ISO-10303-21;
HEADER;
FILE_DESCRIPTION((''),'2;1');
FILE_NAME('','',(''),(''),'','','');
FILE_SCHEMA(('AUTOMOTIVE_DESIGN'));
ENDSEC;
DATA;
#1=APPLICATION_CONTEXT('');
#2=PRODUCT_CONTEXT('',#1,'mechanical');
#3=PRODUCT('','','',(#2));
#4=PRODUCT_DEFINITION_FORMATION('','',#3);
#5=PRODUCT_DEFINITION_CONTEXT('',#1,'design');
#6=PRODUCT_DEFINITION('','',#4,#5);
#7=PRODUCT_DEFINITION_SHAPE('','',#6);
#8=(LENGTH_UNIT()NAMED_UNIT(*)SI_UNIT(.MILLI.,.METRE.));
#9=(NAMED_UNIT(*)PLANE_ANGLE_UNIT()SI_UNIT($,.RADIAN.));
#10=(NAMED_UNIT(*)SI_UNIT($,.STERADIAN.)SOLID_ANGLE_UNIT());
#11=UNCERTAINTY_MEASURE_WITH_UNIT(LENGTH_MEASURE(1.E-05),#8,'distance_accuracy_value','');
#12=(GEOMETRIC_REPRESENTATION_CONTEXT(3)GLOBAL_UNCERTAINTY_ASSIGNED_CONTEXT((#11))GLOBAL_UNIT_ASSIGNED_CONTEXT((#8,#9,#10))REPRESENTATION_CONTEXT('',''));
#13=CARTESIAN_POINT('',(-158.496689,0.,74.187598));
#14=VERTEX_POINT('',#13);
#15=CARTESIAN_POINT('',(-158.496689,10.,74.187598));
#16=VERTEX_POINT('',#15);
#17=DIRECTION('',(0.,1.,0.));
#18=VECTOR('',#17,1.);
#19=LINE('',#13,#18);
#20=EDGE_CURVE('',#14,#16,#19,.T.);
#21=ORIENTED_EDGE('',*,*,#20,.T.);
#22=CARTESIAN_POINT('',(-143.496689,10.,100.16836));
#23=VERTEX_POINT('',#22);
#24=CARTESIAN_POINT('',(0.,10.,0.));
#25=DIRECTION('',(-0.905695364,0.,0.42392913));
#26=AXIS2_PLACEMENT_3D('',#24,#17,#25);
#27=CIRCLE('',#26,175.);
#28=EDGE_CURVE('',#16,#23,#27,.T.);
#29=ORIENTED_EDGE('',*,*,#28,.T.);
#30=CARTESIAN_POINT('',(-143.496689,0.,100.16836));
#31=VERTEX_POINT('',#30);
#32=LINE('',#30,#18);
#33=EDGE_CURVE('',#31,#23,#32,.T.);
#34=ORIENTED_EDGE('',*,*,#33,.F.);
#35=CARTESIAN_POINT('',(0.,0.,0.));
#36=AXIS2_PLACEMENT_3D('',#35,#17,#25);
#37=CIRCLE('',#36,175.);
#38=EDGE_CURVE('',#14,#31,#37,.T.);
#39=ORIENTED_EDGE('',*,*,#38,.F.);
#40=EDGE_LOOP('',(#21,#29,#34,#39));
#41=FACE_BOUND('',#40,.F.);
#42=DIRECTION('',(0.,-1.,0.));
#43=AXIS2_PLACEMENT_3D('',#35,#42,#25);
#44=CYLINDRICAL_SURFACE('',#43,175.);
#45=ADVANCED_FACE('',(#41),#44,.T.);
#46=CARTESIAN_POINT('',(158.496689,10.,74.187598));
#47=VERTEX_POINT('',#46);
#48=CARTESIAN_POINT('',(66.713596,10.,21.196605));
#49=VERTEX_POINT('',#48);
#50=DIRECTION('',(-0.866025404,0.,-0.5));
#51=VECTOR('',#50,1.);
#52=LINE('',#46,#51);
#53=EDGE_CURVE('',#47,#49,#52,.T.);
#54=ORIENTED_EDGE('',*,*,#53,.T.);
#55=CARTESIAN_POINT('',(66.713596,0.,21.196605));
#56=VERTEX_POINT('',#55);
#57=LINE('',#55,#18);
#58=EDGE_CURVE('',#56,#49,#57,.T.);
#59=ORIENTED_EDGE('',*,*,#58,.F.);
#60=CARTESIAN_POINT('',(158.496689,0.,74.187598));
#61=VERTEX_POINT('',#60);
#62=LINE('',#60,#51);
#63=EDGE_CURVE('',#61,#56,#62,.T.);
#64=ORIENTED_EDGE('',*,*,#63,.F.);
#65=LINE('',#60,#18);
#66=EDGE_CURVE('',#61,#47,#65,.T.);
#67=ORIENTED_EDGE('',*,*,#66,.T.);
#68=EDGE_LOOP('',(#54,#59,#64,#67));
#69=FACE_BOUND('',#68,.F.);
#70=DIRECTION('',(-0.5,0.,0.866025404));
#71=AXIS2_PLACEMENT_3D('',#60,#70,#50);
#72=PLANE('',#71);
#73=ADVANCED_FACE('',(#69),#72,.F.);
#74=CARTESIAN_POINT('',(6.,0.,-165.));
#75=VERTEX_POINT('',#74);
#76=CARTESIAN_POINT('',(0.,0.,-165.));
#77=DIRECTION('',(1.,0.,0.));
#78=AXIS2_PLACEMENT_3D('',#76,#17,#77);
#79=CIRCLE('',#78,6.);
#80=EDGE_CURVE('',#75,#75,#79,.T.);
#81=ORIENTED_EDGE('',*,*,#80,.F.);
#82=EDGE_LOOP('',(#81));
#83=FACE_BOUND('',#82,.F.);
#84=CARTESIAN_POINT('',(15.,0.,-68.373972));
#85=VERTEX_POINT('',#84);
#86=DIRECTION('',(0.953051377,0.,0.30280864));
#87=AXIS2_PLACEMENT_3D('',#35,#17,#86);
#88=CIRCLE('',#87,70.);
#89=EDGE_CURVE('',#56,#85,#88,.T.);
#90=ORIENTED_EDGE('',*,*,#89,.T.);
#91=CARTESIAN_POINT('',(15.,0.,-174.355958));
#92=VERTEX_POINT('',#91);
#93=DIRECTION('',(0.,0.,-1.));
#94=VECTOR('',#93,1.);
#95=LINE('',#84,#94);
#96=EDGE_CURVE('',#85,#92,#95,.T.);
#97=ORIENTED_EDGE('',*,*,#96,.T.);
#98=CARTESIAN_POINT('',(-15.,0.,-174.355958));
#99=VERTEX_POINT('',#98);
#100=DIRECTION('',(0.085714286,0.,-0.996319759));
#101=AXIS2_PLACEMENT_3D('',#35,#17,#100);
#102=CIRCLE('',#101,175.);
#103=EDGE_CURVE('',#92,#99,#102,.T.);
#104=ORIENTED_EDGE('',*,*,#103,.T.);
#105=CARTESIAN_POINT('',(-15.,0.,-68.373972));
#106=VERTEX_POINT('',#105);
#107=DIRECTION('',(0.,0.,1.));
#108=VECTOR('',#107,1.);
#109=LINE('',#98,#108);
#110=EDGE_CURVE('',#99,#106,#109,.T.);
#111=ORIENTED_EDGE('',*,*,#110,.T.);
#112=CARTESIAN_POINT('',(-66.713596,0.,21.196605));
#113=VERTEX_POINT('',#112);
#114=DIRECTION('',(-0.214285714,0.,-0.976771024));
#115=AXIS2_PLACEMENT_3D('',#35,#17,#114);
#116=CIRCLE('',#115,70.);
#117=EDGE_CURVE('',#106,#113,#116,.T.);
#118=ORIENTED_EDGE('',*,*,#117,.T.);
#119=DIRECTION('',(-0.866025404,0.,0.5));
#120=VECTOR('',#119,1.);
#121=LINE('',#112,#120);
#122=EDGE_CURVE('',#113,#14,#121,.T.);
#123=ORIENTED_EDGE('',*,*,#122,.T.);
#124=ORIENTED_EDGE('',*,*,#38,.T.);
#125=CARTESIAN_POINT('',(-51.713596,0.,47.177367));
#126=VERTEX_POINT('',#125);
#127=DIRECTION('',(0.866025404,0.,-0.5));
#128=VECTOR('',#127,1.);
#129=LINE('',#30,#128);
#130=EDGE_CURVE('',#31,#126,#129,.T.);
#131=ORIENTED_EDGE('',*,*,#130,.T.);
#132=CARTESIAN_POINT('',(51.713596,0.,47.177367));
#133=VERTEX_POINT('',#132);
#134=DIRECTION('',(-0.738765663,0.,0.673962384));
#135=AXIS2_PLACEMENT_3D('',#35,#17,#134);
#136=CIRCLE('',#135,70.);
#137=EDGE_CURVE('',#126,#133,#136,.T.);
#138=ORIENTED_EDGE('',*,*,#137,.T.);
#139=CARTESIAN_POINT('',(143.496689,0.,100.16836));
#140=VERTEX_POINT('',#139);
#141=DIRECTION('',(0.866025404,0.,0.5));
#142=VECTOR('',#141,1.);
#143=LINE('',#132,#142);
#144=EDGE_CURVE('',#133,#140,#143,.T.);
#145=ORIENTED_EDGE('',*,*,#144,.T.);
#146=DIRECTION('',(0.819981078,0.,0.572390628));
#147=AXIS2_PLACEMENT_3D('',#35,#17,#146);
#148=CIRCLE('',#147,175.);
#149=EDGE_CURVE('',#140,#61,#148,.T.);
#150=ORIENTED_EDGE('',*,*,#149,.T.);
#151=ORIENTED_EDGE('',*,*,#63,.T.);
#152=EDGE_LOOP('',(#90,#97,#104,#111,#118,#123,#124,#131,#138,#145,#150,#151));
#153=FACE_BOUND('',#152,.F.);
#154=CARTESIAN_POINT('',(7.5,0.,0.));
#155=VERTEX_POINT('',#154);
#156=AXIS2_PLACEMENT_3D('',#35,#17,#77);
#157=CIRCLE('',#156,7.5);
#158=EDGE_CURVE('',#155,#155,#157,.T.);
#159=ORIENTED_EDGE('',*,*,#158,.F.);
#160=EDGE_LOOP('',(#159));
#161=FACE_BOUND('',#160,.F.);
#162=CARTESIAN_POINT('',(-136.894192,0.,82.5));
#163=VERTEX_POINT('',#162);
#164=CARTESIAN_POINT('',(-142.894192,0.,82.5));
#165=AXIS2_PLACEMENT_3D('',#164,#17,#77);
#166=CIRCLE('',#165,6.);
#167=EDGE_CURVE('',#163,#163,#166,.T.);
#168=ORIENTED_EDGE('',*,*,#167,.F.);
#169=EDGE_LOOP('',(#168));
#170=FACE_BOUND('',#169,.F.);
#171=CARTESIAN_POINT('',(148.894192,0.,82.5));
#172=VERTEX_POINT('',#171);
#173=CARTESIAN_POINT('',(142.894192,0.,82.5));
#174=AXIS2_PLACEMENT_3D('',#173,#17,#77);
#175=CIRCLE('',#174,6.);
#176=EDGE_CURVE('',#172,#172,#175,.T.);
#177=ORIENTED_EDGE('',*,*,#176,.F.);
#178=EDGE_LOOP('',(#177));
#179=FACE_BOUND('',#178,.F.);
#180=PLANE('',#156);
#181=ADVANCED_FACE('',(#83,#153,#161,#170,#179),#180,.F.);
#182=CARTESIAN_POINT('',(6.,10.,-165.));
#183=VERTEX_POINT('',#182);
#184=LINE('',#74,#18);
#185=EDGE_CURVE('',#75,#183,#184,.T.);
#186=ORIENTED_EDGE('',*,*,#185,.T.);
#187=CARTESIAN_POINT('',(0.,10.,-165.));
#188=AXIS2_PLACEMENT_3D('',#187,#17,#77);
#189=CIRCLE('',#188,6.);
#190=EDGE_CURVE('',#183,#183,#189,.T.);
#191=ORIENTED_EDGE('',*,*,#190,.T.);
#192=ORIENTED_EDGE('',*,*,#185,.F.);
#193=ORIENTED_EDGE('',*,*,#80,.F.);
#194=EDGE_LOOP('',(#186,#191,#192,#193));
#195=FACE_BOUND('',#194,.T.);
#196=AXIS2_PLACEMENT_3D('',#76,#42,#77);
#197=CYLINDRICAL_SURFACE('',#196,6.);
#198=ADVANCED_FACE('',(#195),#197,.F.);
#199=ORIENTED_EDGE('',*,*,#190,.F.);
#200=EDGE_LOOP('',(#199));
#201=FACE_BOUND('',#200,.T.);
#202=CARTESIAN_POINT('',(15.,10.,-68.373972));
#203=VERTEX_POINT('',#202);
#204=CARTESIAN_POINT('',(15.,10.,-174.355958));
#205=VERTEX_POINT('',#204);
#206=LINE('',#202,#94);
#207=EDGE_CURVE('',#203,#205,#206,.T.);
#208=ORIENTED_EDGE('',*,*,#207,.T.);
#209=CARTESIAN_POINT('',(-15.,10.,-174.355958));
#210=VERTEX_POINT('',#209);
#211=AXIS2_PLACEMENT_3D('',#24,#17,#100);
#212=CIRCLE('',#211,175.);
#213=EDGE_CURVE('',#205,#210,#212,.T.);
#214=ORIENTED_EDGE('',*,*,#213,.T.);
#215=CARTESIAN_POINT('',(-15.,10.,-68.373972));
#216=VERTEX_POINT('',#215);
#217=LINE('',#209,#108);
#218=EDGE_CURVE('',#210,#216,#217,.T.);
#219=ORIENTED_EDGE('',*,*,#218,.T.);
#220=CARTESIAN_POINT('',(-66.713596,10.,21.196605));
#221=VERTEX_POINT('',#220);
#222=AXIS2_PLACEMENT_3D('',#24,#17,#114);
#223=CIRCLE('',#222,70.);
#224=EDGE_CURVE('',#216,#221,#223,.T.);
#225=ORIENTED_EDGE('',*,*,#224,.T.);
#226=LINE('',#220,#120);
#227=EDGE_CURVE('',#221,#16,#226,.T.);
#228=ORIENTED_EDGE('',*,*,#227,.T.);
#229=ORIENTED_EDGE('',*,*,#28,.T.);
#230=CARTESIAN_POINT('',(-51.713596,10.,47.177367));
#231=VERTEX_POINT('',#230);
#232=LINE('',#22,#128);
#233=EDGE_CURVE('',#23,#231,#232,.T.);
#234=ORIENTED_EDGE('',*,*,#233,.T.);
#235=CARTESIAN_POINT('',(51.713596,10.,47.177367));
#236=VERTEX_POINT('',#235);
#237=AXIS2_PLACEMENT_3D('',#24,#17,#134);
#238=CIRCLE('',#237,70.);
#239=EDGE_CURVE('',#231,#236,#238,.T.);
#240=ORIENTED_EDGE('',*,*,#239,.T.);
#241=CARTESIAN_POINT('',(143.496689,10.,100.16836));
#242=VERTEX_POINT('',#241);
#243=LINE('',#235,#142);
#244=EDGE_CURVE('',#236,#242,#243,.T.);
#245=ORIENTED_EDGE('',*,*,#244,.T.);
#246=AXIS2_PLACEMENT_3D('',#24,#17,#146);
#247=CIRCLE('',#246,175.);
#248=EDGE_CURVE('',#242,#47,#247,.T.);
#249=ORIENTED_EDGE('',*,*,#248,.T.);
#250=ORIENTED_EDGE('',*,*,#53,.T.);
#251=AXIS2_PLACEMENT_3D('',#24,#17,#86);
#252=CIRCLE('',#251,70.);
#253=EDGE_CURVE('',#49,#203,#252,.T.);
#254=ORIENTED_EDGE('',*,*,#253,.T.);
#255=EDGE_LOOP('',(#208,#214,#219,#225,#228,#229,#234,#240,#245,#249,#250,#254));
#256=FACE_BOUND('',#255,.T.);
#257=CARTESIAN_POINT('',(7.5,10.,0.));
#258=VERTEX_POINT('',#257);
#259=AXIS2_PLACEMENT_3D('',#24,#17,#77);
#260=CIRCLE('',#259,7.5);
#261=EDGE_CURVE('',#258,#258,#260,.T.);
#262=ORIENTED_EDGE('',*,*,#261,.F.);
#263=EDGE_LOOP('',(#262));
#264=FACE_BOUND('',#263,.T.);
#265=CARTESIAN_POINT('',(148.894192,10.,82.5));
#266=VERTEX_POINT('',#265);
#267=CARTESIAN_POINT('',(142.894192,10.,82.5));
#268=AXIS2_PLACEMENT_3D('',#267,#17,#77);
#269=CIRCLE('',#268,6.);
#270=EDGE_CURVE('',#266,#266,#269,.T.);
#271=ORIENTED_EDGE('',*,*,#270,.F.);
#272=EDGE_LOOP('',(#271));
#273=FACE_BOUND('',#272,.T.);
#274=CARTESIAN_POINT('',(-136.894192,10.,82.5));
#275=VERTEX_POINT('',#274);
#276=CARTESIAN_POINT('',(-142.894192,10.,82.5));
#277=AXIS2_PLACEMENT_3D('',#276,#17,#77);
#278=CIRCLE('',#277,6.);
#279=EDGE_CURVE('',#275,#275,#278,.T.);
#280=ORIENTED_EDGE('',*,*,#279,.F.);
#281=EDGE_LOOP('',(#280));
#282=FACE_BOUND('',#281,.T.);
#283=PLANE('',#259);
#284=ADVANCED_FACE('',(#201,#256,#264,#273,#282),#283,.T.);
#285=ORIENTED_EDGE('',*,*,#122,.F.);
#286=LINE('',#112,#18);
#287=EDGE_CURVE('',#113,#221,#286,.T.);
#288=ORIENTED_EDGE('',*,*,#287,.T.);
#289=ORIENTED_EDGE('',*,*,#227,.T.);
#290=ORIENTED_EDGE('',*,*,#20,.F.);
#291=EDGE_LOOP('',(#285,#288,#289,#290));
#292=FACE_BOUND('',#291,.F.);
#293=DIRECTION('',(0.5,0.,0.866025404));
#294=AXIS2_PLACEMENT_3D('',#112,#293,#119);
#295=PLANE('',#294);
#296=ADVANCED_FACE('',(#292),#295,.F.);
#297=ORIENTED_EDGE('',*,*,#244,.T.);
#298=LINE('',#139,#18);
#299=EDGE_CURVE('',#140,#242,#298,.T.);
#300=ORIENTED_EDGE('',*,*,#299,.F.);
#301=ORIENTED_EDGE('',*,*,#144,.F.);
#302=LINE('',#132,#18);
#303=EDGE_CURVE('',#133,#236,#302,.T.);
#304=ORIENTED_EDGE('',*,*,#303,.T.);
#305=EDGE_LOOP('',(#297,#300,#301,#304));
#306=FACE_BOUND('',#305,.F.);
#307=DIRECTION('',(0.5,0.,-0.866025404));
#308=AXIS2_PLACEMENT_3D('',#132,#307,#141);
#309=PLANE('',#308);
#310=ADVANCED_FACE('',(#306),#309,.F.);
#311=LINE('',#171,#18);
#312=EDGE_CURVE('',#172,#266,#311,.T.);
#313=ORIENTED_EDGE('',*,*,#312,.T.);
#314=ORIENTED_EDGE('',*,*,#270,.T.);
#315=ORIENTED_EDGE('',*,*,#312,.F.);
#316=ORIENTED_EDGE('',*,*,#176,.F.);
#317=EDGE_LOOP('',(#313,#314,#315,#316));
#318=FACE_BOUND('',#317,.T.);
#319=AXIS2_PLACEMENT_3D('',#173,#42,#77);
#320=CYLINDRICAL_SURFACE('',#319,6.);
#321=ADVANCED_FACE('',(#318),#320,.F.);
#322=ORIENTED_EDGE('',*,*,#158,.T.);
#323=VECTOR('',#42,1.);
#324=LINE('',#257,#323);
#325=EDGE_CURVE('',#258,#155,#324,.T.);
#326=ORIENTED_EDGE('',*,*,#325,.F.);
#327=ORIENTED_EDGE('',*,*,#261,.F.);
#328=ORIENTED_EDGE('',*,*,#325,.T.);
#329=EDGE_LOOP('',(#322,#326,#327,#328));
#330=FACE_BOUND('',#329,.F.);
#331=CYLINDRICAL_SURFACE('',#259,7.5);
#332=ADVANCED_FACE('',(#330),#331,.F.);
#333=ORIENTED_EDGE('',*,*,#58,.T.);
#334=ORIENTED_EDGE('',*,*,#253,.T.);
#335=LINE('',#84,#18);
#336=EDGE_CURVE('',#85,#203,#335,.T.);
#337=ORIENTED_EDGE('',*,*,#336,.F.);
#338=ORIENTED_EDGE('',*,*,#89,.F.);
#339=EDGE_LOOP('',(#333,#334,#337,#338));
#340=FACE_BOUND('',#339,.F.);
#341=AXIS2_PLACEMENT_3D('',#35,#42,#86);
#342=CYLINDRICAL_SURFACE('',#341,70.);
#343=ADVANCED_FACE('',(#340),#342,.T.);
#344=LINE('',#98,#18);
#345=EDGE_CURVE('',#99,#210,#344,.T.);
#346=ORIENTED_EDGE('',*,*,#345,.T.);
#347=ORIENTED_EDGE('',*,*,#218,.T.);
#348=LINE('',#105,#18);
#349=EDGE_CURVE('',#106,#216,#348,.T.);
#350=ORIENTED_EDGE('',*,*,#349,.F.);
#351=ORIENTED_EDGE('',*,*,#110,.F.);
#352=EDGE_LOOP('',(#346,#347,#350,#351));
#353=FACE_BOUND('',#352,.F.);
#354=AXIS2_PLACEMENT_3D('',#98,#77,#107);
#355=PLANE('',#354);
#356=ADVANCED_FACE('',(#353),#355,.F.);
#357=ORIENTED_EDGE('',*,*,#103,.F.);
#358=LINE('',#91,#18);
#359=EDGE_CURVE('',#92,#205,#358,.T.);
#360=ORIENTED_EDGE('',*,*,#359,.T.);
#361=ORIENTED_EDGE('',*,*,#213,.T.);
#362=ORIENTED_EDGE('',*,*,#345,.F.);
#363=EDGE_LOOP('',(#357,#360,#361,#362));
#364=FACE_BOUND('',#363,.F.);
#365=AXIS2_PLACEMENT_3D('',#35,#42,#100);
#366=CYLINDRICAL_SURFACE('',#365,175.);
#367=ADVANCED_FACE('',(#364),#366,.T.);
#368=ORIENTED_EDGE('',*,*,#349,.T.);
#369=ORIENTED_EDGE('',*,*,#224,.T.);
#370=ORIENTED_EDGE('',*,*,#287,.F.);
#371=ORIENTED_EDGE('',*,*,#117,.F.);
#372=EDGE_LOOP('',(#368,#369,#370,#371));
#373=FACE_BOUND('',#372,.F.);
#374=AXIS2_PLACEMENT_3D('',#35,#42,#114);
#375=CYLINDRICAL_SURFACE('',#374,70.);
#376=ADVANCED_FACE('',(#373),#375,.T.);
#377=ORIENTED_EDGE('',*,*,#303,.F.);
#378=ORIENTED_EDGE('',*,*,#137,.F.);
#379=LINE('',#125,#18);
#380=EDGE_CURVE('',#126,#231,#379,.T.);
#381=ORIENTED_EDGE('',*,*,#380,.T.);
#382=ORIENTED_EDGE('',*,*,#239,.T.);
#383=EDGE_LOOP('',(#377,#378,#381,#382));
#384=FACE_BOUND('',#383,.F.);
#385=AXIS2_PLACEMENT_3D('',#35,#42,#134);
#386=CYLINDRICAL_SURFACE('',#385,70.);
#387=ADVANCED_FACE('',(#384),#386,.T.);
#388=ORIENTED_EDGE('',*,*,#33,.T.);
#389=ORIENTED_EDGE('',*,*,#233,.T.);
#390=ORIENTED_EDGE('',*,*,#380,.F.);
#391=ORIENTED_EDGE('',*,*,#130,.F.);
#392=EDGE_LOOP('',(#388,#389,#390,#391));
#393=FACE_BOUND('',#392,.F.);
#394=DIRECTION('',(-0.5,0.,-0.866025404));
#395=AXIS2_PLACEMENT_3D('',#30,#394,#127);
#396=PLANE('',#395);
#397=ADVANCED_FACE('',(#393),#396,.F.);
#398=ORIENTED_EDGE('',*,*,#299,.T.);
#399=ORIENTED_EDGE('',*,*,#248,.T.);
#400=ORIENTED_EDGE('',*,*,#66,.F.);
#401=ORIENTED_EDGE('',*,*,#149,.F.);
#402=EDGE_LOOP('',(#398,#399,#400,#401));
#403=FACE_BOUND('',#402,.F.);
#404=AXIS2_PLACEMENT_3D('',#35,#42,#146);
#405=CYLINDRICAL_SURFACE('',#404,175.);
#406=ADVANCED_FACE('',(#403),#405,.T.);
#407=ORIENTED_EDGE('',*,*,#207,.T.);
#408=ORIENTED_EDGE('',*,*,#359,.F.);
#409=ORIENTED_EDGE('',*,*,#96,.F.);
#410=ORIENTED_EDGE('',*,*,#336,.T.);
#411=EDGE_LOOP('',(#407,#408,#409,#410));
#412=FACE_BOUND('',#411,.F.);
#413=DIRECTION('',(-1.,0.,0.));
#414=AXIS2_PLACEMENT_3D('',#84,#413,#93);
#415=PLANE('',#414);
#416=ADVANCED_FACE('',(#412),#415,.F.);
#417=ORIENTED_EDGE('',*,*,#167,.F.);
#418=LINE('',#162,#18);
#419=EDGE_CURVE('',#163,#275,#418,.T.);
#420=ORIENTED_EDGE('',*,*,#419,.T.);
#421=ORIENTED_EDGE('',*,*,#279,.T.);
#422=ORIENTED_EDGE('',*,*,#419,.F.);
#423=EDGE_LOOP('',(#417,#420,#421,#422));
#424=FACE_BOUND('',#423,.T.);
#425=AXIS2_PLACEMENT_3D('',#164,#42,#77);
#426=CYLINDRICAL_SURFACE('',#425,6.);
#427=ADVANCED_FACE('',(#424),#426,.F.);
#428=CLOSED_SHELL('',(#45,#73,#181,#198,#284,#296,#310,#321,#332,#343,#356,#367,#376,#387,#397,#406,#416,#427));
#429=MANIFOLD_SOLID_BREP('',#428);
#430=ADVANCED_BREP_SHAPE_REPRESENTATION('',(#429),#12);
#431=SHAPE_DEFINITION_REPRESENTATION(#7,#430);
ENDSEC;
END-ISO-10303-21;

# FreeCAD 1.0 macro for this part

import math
import FreeCAD as App
import Part
import Sketcher

V = App.Vector
Q = App.Units.Quantity

doc = App.newDocument("Part")
params = doc.addObject("Spreadsheet::Sheet", "Params")
for row, (alias, value) in enumerate([
    ("sketch1_diameter", "12 mm"),
    ("sketch1_radius", "70 mm"),
    ("sketch1_radius2", "175 mm"),
    ("pad1_length", "10 mm"),
    ("sketch2_diameter", "15 mm"),
], start=1):
    params.set(f"A{row}", alias)
    params.set(f"B{row}", "=" + value)
    params.setAlias(f"B{row}", alias)

body = doc.addObject("PartDesign::Body", "Body")

# Sketch on XZ plane
sketch1 = body.newObject("Sketcher::SketchObject", "Sketch")
sketch1.AttachmentSupport = (doc.getObject("XZ_Plane"), [""])
sketch1.MapMode = "FlatFace"
sketch1.addGeometry([
    Part.LineSegment(V(158.496689, 74.187598, 0), V(66.713596, 21.196605, 0)),  # 0
    Part.ArcOfCircle(Part.Circle(V(0, 0, 0), V(0, 0, 1), 70), math.radians(-77.626375), math.radians(17.626375)),  # 1
    Part.LineSegment(V(15, -68.373972, 0), V(15, -174.355958, 0)),  # 2
    Part.ArcOfCircle(Part.Circle(V(0, 0, 0), V(0, 0, 1), 175), math.radians(-94.9171), math.radians(-85.0829)),  # 3
    Part.LineSegment(V(-15, -174.355958, 0), V(-15, -68.373972, 0)),  # 4
    Part.ArcOfCircle(Part.Circle(V(0, 0, 0), V(0, 0, 1), 70), math.radians(162.373625), math.radians(257.626375)),  # 5
    Part.LineSegment(V(-66.713596, 21.196605, 0), V(-158.496689, 74.187598, 0)),  # 6
    Part.ArcOfCircle(Part.Circle(V(0, 0, 0), V(0, 0, 1), 175), math.radians(145.0829), math.radians(154.9171)),  # 7
    Part.LineSegment(V(-143.496689, 100.16836, 0), V(-51.713596, 47.177367, 0)),  # 8
    Part.ArcOfCircle(Part.Circle(V(0, 0, 0), V(0, 0, 1), 70), math.radians(42.373625), math.radians(137.626375)),  # 9
    Part.LineSegment(V(51.713596, 47.177367, 0), V(143.496689, 100.16836, 0)),  # 10
    Part.ArcOfCircle(Part.Circle(V(0, 0, 0), V(0, 0, 1), 175), math.radians(25.0829), math.radians(34.9171)),  # 11
    Part.Circle(V(-142.894192, 82.5, 0), V(0, 0, 1), 6),  # 12
    Part.Circle(V(142.894192, 82.5, 0), V(0, 0, 1), 6),  # 13
    Part.Circle(V(0, -165, 0), V(0, 0, 1), 6),  # 14
], False)
sketch1.addConstraint([
    Sketcher.Constraint("Coincident", 0, 2, 1, 2),
    Sketcher.Constraint("Coincident", 1, 1, 2, 1),
    Sketcher.Constraint("Coincident", 2, 2, 3, 2),
    Sketcher.Constraint("Coincident", 3, 1, 4, 1),
    Sketcher.Constraint("Coincident", 4, 2, 5, 2),
    Sketcher.Constraint("Coincident", 5, 1, 6, 1),
    Sketcher.Constraint("Coincident", 6, 2, 7, 2),
    Sketcher.Constraint("Coincident", 7, 1, 8, 1),
    Sketcher.Constraint("Coincident", 8, 2, 9, 2),
    Sketcher.Constraint("Coincident", 9, 1, 10, 1),
    Sketcher.Constraint("Coincident", 10, 2, 11, 2),
    Sketcher.Constraint("Coincident", 11, 1, 0, 1),
    Sketcher.Constraint("Vertical", 2),
    Sketcher.Constraint("Vertical", 4),
    Sketcher.Constraint("Coincident", 1, 3, -1, 1),
    Sketcher.Constraint("Coincident", 3, 3, -1, 1),
    Sketcher.Constraint("Coincident", 5, 3, -1, 1),
    Sketcher.Constraint("Coincident", 7, 3, -1, 1),
    Sketcher.Constraint("Coincident", 9, 3, -1, 1),
    Sketcher.Constraint("Coincident", 11, 3, -1, 1),
    Sketcher.Constraint("Equal", 1, 5),
    Sketcher.Constraint("Equal", 3, 7),
    Sketcher.Constraint("Equal", 5, 9),
    Sketcher.Constraint("Equal", 7, 11),
    Sketcher.Constraint("Equal", 12, 13),
    Sketcher.Constraint("Equal", 13, 14),
    Sketcher.Constraint("Symmetric", 12, 3, 13, 3, -2),
    Sketcher.Constraint("PointOnObject", 14, 3, -2),
    Sketcher.Constraint("Parallel", 6, 8),
    Sketcher.Constraint("Parallel", 0, 10),
    Sketcher.Constraint("Horizontal", 2, 2, 3, 1),
    Sketcher.Constraint("Horizontal", 0, 2, 5, 1),
    Sketcher.Constraint("Horizontal", 8, 2, 9, 1),
    Sketcher.Constraint("Horizontal", 7, 1, 10, 2),
    Sketcher.Constraint("Equal", 6, 8),
    Sketcher.Constraint("Diameter", 12, Q("12 mm")),
    Sketcher.Constraint("Radius", 1, Q("70 mm")),
    Sketcher.Constraint("Radius", 3, Q("175 mm")),
    Sketcher.Constraint("Angle", 0, Q("-150 deg")),
    Sketcher.Constraint("DistanceY", 14, 3, -1, 1, Q("165 mm")),
    Sketcher.Constraint("DistanceX", -1, 1, 1, 1, Q("15 mm")),
    Sketcher.Constraint("DistanceX", 6, 2, 7, 1, Q("15 mm")),
    Sketcher.Constraint("DistanceY", -1, 1, 12, 3, Q("82.5 mm")),
    Sketcher.Constraint("DistanceX", 12, 3, -1, 1, Q("142.894192 mm")),
])
sketch1.setExpression("Constraints[35]", "Params.sketch1_diameter")
sketch1.setExpression("Constraints[36]", "Params.sketch1_radius")
sketch1.setExpression("Constraints[37]", "Params.sketch1_radius2")
pad1 = body.newObject("PartDesign::Pad", "Pad")
pad1.Profile = sketch1
pad1.setExpression("Length", "Params.pad1_length")
pad1.Reversed = True

# Sketch on XZ plane
sketch2 = body.newObject("Sketcher::SketchObject", "Sketch001")
sketch2.AttachmentSupport = (doc.getObject("XZ_Plane"), [""])
sketch2.MapMode = "FlatFace"
sketch2.AttachmentOffset = App.Placement(V(0, 0, -10), App.Rotation())
sketch2.addGeometry(Part.Circle(V(0, 0, 0), V(0, 0, 1), 7.5), False)
sketch2.addConstraint([
    Sketcher.Constraint("Coincident", 0, 3, -1, 1),
    Sketcher.Constraint("Diameter", 0, Q("15 mm")),
])
sketch2.setExpression("Constraints[1]", "Params.sketch2_diameter")
pocket1 = body.newObject("PartDesign::Pocket", "Pocket")
pocket1.Profile = sketch2
pocket1.Type = "ThroughAll"
pocket1.Reversed = True

doc.recompute()
